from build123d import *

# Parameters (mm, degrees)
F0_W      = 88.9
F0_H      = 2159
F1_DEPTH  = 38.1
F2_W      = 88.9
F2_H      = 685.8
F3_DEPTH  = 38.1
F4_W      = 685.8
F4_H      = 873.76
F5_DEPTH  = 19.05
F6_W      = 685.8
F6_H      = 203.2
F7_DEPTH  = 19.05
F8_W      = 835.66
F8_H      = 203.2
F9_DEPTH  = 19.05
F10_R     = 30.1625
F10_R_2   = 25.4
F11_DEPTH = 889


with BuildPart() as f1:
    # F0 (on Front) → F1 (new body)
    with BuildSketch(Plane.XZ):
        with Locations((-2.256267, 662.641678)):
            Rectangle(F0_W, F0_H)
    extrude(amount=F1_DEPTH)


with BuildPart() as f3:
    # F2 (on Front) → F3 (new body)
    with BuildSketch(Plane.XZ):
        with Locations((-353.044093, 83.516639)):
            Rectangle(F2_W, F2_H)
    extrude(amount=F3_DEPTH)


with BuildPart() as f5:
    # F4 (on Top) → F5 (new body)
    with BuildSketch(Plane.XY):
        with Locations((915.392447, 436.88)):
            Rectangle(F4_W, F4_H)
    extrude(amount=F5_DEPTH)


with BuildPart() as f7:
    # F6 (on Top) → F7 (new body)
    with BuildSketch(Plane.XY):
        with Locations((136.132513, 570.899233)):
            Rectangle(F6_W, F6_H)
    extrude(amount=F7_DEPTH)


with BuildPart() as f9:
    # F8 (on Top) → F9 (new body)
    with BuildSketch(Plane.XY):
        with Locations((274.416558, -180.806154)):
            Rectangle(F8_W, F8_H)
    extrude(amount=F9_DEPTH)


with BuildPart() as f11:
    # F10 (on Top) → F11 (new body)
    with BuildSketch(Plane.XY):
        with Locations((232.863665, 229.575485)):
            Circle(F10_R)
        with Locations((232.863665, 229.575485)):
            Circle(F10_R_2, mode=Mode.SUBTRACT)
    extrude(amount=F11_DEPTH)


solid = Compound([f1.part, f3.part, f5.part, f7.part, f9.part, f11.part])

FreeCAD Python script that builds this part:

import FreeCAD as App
import Part
import Sketcher
from FreeCAD import Vector
Q = App.Units.Quantity


def add_polygon(sketch, points):
    """Adds a closed chain of lines whose ends are joined by coincident constraints."""
    first, n = sketch.GeometryCount, len(points)
    for a, b in zip(points, points[1:] + points[:1]):
        sketch.addGeometry(Part.LineSegment(App.Vector(*a, 0), App.Vector(*b, 0)), False)
    for i in range(n):
        sketch.addConstraint(Sketcher.Constraint("Coincident", first + i, 2, first + (i + 1) % n, 1))

doc = App.newDocument("Part")
body = doc.addObject("PartDesign::Body", "Body")

sketch1 = body.newObject("Sketcher::SketchObject", "Sketch")
sketch1.AttachmentSupport = (doc.getObject("XZ_Plane"), [""])
sketch1.MapMode = "FlatFace"
add_polygon(sketch1, [(-47, 1742), (-47, -417), (42, -417), (42, 1742)])
sketch1.addConstraint(Sketcher.Constraint("Vertical", 0))
sketch1.addConstraint(Sketcher.Constraint("Horizontal", 1))
sketch1.addConstraint(Sketcher.Constraint("Vertical", 2))
sketch1.addConstraint(Sketcher.Constraint("Horizontal", 3))
sketch1.addConstraint(Sketcher.Constraint("DistanceY", 0, 2, 0, 1, Q("85 in")))
sketch1.addConstraint(Sketcher.Constraint("DistanceX", 1, 1, 1, 2, Q("3.5 in")))
sketch1.addConstraint(Sketcher.Constraint("DistanceY", 0, 2, -1, 1, 416.858322))
sketch1.addConstraint(Sketcher.Constraint("DistanceX", 0, 2, -1, 1, 46.706267))
pad1 = body.newObject("PartDesign::Pad", "Pad")
pad1.Profile = sketch1
pad1.Length = Q("1.5 in")
body2 = doc.addObject("PartDesign::Body", "Body001")

sketch2 = body2.newObject("Sketcher::SketchObject", "Sketch001")
sketch2.AttachmentSupport = (doc.getObject("XZ_Plane001"), [""])
sketch2.MapMode = "FlatFace"
add_polygon(sketch2, [(-397, 426), (-397, -259), (-309, -259), (-309, 426)])
sketch2.addConstraint(Sketcher.Constraint("Vertical", 0))
sketch2.addConstraint(Sketcher.Constraint("Horizontal", 1))
sketch2.addConstraint(Sketcher.Constraint("Vertical", 2))
sketch2.addConstraint(Sketcher.Constraint("Horizontal", 3))
sketch2.addConstraint(Sketcher.Constraint("DistanceY", 0, 2, 0, 1, Q("27 in")))
sketch2.addConstraint(Sketcher.Constraint("DistanceX", 1, 1, 1, 2, Q("3.5 in")))
sketch2.addConstraint(Sketcher.Constraint("DistanceY", 0, 2, -1, 1, 259.383361))
sketch2.addConstraint(Sketcher.Constraint("DistanceX", 0, 2, -1, 1, 397.494093))
pad2 = body2.newObject("PartDesign::Pad", "Pad001")
pad2.Profile = sketch2
pad2.Length = Q("1.5 in")
body3 = doc.addObject("PartDesign::Body", "Body002")

sketch3 = body3.newObject("Sketcher::SketchObject", "Sketch002")
sketch3.AttachmentSupport = (doc.getObject("XY_Plane002"), [""])
sketch3.MapMode = "FlatFace"
add_polygon(sketch3, [(572, 874), (572, 0), (1258, 0), (1258, 874)])
sketch3.addConstraint(Sketcher.Constraint("Vertical", 0))
sketch3.addConstraint(Sketcher.Constraint("Horizontal", 1))
sketch3.addConstraint(Sketcher.Constraint("Vertical", 2))
sketch3.addConstraint(Sketcher.Constraint("Horizontal", 3))
sketch3.addConstraint(Sketcher.Constraint("PointOnObject", 0, 2, -1))
sketch3.addConstraint(Sketcher.Constraint("DistanceX", 1, 1, 1, 2, Q("27 in")))
sketch3.addConstraint(Sketcher.Constraint("DistanceY", 0, 2, 0, 1, Q("34.4 in")))
sketch3.addConstraint(Sketcher.Constraint("DistanceX", -1, 1, 0, 2, 572.492447))
pad3 = body3.newObject("PartDesign::Pad", "Pad002")
pad3.Profile = sketch3
pad3.Length = Q("0.75 in")
body4 = doc.addObject("PartDesign::Body", "Body003")

sketch4 = body4.newObject("Sketcher::SketchObject", "Sketch003")
sketch4.AttachmentSupport = (doc.getObject("XY_Plane003"), [""])
sketch4.MapMode = "FlatFace"
add_polygon(sketch4, [(-207, 672), (-207, 469), (479, 469), (479, 672)])
sketch4.addConstraint(Sketcher.Constraint("Vertical", 0))
sketch4.addConstraint(Sketcher.Constraint("Horizontal", 1))
sketch4.addConstraint(Sketcher.Constraint("Vertical", 2))
sketch4.addConstraint(Sketcher.Constraint("Horizontal", 3))
sketch4.addConstraint(Sketcher.Constraint("DistanceX", 1, 1, 1, 2, Q("27 in")))
sketch4.addConstraint(Sketcher.Constraint("DistanceY", 0, 2, 0, 1, Q("8 in")))
sketch4.addConstraint(Sketcher.Constraint("DistanceX", 0, 2, -1, 1, 206.767487))
sketch4.addConstraint(Sketcher.Constraint("DistanceY", -1, 1, 0, 2, 469.299233))
pad4 = body4.newObject("PartDesign::Pad", "Pad003")
pad4.Profile = sketch4
pad4.Length = Q("0.75 in")
body5 = doc.addObject("PartDesign::Body", "Body004")

sketch5 = body5.newObject("Sketcher::SketchObject", "Sketch004")
sketch5.AttachmentSupport = (doc.getObject("XY_Plane004"), [""])
sketch5.MapMode = "FlatFace"
add_polygon(sketch5, [(-143, -79), (-143, -282), (692, -282), (692, -79)])
sketch5.addConstraint(Sketcher.Constraint("Vertical", 0))
sketch5.addConstraint(Sketcher.Constraint("Horizontal", 1))
sketch5.addConstraint(Sketcher.Constraint("Vertical", 2))
sketch5.addConstraint(Sketcher.Constraint("Horizontal", 3))
sketch5.addConstraint(Sketcher.Constraint("DistanceY", 0, 2, 0, 1, Q("8 in")))
sketch5.addConstraint(Sketcher.Constraint("DistanceX", 1, 1, 1, 2, Q("32.9 in")))
sketch5.addConstraint(Sketcher.Constraint("DistanceX", 0, 2, -1, 1, 143.413442))
sketch5.addConstraint(Sketcher.Constraint("DistanceY", 0, 2, -1, 1, 282.406154))
pad5 = body5.newObject("PartDesign::Pad", "Pad004")
pad5.Profile = sketch5
pad5.Length = Q("0.75 in")
body6 = doc.addObject("PartDesign::Body", "Body005")

sketch6 = body6.newObject("Sketcher::SketchObject", "Sketch005")
sketch6.AttachmentSupport = (doc.getObject("XY_Plane005"), [""])
sketch6.MapMode = "FlatFace"
sketch6.addGeometry(Part.Circle(Vector(233, 230, 0), Vector(0, 0, 1), 30), False)
sketch6.addGeometry(Part.Circle(Vector(233, 230, 0), Vector(0, 0, 1), 25), False)
sketch6.addConstraint(Sketcher.Constraint("Coincident", 1, 3, 0, 3))
sketch6.addConstraint(Sketcher.Constraint("Diameter", 1, Q("2 in")))
sketch6.addConstraint(Sketcher.Constraint("Diameter", 0, Q("2.375 in")))
sketch6.addConstraint(Sketcher.Constraint("DistanceX", -1, 1, 0, 3, 232.863665))
sketch6.addConstraint(Sketcher.Constraint("DistanceY", -1, 1, 0, 3, 229.575485))
pad6 = body6.newObject("PartDesign::Pad", "Pad005")
pad6.Profile = sketch6
pad6.Length = Q("35 in")

doc.recompute()
